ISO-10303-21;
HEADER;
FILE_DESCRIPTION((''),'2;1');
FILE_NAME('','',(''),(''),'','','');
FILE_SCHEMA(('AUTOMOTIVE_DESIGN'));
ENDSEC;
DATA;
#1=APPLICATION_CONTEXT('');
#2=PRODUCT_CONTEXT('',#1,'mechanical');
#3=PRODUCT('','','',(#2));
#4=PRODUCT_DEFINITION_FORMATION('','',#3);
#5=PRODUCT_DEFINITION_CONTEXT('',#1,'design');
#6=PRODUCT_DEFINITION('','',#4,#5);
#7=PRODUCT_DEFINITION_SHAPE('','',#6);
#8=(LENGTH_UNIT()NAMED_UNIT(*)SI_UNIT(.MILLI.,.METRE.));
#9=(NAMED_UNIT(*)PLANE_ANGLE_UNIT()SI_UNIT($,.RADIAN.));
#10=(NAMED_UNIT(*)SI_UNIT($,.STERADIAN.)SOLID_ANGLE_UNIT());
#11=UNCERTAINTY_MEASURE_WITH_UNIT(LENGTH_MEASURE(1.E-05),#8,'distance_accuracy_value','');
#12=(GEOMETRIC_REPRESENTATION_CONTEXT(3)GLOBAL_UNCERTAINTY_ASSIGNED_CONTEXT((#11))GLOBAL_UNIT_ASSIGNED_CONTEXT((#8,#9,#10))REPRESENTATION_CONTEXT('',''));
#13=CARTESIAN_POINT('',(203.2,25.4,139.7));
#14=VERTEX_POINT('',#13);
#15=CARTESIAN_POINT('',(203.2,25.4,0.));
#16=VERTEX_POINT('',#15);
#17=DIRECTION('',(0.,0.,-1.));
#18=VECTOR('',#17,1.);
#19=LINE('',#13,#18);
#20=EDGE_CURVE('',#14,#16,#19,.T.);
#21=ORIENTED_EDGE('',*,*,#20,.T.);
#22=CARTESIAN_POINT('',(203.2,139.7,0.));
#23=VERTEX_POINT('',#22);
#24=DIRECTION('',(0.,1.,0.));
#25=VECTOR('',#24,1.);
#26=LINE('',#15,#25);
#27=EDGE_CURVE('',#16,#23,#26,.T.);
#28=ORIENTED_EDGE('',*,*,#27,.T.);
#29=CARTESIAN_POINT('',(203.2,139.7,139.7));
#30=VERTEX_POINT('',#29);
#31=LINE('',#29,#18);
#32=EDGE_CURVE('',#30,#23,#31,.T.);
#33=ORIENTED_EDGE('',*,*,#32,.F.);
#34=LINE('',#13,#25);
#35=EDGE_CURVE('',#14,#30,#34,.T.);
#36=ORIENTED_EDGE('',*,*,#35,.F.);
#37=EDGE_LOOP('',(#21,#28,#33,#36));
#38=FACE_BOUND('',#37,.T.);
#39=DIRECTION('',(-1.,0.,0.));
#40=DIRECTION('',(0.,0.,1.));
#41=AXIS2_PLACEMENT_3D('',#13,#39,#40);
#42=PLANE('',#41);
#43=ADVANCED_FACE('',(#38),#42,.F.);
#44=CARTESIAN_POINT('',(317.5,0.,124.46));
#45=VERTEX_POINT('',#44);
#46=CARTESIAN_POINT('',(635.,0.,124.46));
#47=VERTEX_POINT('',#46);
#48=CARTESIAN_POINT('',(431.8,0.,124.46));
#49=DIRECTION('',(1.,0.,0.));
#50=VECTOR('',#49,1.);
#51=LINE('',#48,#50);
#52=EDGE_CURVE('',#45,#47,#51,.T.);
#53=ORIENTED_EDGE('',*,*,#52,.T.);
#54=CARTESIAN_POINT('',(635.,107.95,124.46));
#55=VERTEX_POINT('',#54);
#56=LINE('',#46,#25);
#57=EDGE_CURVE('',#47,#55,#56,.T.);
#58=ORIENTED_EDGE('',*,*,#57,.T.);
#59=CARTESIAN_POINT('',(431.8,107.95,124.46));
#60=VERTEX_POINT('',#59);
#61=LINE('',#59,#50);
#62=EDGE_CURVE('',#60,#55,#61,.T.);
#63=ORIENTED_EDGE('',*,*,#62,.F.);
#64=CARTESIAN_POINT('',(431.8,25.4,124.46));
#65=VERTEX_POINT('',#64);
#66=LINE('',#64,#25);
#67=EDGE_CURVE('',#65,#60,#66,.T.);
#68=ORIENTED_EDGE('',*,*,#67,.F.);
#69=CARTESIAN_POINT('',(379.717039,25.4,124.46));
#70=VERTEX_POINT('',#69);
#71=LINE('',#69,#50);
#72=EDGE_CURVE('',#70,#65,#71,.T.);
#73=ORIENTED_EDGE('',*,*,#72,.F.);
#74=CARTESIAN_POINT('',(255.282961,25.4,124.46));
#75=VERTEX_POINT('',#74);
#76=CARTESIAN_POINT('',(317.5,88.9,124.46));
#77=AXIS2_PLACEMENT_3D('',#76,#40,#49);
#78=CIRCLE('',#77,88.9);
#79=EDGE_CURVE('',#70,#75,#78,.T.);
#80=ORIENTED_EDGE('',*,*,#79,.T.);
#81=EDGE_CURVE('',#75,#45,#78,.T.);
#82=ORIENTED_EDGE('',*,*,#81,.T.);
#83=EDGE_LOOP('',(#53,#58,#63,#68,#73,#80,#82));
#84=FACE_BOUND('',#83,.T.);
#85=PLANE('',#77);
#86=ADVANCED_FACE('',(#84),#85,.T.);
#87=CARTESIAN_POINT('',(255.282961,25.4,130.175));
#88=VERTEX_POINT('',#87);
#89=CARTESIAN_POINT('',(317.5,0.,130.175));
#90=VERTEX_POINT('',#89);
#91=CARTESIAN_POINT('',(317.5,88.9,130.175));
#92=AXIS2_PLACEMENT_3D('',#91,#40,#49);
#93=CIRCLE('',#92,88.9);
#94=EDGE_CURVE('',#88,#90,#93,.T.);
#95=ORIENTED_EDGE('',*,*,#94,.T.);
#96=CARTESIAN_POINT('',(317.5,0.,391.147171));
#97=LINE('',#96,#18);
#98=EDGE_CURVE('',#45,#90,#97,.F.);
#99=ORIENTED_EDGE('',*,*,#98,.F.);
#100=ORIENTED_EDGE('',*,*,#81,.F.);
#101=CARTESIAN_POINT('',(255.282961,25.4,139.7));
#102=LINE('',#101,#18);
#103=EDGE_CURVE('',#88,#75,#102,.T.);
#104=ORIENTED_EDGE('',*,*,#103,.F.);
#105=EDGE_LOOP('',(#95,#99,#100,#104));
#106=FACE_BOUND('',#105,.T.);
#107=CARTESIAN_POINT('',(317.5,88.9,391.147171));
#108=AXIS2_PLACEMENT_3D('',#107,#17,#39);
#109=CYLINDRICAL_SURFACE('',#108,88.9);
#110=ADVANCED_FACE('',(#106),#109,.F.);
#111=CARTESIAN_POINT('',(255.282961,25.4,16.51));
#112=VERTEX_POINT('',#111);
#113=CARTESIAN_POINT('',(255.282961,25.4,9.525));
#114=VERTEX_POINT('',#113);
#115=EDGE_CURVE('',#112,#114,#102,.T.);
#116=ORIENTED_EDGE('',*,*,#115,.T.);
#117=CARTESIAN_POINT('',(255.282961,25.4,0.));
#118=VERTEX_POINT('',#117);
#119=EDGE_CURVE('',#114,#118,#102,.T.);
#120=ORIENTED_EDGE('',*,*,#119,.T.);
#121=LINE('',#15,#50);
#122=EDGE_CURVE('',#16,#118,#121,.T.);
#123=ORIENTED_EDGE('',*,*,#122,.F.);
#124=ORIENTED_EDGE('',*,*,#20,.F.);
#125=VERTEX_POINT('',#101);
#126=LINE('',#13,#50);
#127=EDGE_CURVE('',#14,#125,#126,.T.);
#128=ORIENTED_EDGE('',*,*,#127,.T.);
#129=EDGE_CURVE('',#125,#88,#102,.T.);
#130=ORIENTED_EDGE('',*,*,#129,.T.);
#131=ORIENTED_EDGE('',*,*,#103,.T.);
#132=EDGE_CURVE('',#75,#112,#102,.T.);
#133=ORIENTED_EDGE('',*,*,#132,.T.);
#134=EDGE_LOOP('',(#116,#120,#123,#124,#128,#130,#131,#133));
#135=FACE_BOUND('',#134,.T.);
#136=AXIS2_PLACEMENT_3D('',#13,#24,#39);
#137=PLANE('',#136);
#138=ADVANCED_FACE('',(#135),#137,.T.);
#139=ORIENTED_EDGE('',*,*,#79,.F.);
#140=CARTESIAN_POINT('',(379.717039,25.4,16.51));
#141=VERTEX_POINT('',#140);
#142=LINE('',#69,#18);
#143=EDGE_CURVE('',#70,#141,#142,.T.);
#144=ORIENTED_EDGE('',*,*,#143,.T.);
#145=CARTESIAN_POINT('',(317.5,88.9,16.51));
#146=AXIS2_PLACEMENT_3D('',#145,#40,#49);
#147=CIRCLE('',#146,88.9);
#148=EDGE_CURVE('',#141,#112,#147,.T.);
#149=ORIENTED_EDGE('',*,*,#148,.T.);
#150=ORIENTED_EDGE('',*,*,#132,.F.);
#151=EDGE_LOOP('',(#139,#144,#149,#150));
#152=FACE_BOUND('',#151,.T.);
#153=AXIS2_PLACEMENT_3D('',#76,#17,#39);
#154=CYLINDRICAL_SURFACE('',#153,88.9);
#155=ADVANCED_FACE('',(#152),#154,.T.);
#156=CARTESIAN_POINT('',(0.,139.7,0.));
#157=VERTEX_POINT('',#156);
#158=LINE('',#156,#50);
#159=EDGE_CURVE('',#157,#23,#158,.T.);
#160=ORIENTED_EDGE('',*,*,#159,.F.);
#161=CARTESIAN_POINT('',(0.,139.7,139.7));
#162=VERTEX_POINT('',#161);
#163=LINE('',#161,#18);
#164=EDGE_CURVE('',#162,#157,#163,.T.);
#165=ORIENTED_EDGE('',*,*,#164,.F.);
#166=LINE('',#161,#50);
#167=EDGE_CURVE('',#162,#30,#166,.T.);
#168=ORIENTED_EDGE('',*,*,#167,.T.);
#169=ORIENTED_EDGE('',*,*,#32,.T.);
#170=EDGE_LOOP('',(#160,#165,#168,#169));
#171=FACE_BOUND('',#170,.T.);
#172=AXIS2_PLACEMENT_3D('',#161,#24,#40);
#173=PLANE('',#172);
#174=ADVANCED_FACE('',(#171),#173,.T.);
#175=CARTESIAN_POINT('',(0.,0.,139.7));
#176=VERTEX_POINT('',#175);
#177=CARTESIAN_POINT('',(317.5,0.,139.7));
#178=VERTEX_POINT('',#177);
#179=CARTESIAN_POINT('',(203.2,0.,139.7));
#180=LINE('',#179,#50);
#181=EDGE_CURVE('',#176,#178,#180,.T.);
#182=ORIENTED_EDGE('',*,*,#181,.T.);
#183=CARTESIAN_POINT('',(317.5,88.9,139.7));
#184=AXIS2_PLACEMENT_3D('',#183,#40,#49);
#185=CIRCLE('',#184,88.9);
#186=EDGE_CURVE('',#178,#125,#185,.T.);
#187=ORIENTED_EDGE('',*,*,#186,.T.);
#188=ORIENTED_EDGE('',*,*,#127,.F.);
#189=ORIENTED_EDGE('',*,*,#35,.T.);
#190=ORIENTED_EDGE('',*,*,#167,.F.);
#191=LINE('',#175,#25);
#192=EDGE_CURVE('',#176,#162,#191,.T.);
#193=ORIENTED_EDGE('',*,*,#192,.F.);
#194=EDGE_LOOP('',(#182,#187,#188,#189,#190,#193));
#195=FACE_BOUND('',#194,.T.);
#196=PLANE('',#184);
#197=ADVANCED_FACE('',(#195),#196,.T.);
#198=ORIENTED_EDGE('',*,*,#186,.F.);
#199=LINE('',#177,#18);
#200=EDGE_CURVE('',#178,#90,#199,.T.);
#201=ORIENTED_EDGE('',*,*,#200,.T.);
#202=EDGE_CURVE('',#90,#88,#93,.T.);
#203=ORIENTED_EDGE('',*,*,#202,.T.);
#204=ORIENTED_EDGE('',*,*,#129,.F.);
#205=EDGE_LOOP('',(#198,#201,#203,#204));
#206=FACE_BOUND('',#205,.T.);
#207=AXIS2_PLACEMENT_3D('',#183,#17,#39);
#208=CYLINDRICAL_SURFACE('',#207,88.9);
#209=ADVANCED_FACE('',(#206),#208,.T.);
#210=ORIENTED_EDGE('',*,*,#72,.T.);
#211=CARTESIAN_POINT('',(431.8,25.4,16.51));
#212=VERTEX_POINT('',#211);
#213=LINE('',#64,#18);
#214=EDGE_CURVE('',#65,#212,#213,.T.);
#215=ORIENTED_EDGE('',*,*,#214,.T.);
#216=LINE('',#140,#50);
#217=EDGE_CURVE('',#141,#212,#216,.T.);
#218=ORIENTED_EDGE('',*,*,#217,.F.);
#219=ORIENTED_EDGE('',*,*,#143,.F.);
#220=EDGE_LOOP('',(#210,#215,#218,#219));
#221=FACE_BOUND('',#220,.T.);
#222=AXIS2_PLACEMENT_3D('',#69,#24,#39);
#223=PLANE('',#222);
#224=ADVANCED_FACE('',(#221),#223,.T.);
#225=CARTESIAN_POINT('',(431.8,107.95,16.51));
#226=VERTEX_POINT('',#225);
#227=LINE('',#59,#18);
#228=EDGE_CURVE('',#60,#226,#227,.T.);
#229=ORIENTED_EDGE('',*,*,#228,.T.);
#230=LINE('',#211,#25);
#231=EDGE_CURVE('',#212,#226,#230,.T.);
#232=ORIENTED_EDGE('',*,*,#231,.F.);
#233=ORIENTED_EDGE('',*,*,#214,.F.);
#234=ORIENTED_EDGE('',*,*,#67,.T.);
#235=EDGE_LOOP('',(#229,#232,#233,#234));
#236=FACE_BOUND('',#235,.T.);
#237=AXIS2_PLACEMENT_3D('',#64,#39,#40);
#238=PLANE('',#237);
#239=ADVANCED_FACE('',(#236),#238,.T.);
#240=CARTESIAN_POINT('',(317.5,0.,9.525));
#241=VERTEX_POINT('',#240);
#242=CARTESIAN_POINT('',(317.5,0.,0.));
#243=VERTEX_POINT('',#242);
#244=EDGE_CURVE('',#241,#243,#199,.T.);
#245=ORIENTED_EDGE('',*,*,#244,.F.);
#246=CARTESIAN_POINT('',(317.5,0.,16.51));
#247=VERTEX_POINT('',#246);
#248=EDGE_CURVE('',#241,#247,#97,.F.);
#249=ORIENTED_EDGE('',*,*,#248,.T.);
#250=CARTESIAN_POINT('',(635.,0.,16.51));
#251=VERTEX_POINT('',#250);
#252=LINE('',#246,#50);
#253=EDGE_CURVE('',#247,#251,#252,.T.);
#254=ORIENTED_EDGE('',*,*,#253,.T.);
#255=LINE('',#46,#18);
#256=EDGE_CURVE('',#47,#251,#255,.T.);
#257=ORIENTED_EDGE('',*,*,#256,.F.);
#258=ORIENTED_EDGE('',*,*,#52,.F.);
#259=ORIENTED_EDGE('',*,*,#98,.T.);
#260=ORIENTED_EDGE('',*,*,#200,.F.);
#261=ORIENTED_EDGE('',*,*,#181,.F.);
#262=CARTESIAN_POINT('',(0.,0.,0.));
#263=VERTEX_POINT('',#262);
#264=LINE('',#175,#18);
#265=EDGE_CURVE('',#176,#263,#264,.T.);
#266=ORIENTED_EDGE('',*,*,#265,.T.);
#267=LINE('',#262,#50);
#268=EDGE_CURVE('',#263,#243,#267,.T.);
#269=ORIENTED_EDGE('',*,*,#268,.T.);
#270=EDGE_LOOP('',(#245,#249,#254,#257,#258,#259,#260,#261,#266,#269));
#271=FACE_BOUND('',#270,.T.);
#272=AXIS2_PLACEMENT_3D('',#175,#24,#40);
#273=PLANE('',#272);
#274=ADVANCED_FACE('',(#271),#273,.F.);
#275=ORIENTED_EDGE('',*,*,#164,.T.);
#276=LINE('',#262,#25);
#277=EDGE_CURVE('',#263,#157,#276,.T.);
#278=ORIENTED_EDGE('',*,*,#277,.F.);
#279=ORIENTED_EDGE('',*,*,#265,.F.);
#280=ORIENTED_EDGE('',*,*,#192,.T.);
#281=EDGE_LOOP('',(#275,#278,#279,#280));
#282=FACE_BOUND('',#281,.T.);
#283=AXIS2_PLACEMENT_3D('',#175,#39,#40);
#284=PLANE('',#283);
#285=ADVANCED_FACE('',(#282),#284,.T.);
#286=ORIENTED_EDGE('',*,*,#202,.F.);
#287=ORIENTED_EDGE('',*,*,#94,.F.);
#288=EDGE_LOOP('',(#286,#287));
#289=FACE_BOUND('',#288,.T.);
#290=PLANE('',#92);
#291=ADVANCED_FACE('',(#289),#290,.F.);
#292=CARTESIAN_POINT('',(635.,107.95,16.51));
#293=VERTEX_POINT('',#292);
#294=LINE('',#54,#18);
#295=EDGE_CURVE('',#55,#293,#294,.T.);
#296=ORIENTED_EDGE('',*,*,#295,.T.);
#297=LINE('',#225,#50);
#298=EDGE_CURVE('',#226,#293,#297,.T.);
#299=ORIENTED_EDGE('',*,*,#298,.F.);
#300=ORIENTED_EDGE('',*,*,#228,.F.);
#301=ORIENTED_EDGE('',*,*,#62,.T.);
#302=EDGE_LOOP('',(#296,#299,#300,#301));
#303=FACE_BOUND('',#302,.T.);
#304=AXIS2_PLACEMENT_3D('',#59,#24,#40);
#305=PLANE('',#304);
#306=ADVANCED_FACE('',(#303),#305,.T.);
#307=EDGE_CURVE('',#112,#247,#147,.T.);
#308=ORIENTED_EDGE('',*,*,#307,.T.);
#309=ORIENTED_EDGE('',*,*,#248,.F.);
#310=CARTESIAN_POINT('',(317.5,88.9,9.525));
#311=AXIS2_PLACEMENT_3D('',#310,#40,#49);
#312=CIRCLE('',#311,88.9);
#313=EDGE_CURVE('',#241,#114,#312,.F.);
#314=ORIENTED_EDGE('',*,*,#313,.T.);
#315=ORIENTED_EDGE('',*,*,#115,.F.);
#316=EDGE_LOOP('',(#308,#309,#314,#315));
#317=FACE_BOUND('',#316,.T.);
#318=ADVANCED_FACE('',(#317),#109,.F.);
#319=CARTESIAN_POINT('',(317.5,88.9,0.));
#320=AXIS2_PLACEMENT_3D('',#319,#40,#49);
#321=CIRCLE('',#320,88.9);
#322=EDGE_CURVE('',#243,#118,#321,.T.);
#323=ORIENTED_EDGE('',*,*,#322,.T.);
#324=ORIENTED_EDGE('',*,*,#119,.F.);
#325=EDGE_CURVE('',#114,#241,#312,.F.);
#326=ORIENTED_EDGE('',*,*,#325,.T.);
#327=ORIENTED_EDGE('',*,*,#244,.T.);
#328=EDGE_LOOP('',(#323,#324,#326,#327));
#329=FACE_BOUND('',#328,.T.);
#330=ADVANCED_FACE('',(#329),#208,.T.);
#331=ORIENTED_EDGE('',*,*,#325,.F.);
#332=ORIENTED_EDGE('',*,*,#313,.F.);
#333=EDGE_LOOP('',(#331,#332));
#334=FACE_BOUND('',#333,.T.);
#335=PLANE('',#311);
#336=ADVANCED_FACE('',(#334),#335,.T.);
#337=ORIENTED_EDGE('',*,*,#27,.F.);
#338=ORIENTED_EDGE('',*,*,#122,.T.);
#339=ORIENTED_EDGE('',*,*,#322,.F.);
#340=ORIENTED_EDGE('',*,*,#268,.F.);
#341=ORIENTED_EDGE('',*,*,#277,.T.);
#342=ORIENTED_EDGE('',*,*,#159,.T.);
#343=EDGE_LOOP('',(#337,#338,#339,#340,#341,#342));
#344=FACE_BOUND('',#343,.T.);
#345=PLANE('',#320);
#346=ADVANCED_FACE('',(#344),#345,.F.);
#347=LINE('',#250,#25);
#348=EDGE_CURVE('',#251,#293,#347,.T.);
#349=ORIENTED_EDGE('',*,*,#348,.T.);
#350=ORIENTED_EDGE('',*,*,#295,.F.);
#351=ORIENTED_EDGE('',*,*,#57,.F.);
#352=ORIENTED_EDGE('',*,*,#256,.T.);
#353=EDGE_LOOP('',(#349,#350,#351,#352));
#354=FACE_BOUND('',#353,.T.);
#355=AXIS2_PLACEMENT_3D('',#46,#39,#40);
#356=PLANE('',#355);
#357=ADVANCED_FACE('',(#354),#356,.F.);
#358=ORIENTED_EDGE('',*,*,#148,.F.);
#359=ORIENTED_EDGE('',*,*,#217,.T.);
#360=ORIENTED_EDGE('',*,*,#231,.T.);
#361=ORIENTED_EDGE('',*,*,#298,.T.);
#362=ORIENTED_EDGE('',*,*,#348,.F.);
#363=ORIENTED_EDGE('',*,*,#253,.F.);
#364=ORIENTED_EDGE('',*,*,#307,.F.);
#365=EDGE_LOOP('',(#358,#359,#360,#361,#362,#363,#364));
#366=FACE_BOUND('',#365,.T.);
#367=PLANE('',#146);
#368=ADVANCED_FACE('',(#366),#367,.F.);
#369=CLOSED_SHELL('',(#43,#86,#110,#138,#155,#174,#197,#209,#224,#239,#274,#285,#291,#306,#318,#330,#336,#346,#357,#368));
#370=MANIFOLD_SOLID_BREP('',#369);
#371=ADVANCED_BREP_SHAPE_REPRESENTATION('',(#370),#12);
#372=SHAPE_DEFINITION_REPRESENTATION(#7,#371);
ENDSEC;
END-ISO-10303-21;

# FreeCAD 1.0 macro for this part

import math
import FreeCAD as App
import Part
import Sketcher

V = App.Vector
Q = App.Units.Quantity

doc = App.newDocument("Part")
body = doc.addObject("PartDesign::Body", "Body")

# Sketch on XY plane
sketch1 = body.newObject("Sketcher::SketchObject", "Sketch")
sketch1.AttachmentSupport = (doc.getObject("XY_Plane"), [""])
sketch1.MapMode = "FlatFace"
sketch1.addGeometry(Part.ArcOfCircle(Part.Circle(V(318, 89, 0), V(0, 0, 1), 89), math.radians(-90), math.radians(226)), False)
sketch1.addGeometry(Part.LineSegment(V(255, 25, 0), V(203, 25, 0)), False)
sketch1.addGeometry(Part.LineSegment(V(203, 25, 0), V(203, 140, 0)), False)
sketch1.addGeometry(Part.LineSegment(V(203, 140, 0), V(0, 140, 0)), False)
sketch1.addGeometry(Part.LineSegment(V(0, 140, 0), V(0, 0, 0)), False)
sketch1.addGeometry(Part.LineSegment(V(0, 0, 0), V(318, 0, 0)), False)
sketch1.addConstraint(Sketcher.Constraint("Coincident", 0, 2, 1, 1))
sketch1.addConstraint(Sketcher.Constraint("Coincident", 1, 2, 2, 1))
sketch1.addConstraint(Sketcher.Constraint("Coincident", 2, 2, 3, 1))
sketch1.addConstraint(Sketcher.Constraint("Coincident", 3, 2, 4, 1))
sketch1.addConstraint(Sketcher.Constraint("Coincident", 4, 2, 5, 1))
sketch1.addConstraint(Sketcher.Constraint("Tangent", 5, 2, 0, 1))
sketch1.addConstraint(Sketcher.Constraint("Horizontal", 1))
sketch1.addConstraint(Sketcher.Constraint("Vertical", 2))
sketch1.addConstraint(Sketcher.Constraint("Horizontal", 3))
sketch1.addConstraint(Sketcher.Constraint("Vertical", 4))
sketch1.addConstraint(Sketcher.Constraint("Horizontal", 5))
sketch1.addConstraint(Sketcher.Constraint("Coincident", 4, 2, -1, 1))
sketch1.addConstraint(Sketcher.Constraint("Radius", 0, Q("3.5 in")))
sketch1.addConstraint(Sketcher.Constraint("DistanceX", 3, 2, 3, 1, Q("8 in")))
sketch1.addConstraint(Sketcher.Constraint("DistanceX", 5, 1, 5, 2, Q("12.5 in")))
sketch1.addConstraint(Sketcher.Constraint("DistanceY", 2, 1, 2, 2, Q("4.5 in")))
sketch1.addConstraint(Sketcher.Constraint("DistanceY", 4, 2, 4, 1, Q("5.5 in")))
pad1 = body.newObject("PartDesign::Pad", "Pad")
pad1.Profile = sketch1
pad1.Length = Q("5.5 in")

# Sketch on XY plane
sketch2 = body.newObject("Sketcher::SketchObject", "Sketch001")
sketch2.AttachmentSupport = (doc.getObject("XY_Plane"), [""])
sketch2.MapMode = "FlatFace"
sketch2.AttachmentOffset = App.Placement(V(0, 0, 2.75 * 25.4), App.Rotation())
sketch2.addGeometry(Part.Circle(V(318, 89, 0), V(0, 0, 1), 89), False)
sketch2.addConstraint(Sketcher.Constraint("Diameter", 0, Q("7 in")))
sketch2.addConstraint(Sketcher.Constraint("DistanceX", -1, 1, 0, 3, Q("12.5 in")))
sketch2.addConstraint(Sketcher.Constraint("DistanceY", -1, 1, 0, 3, Q("3.5 in")))
pocket1 = body.newObject("PartDesign::Pocket", "Pocket")
pocket1.Profile = sketch2
pocket1.Type = "TwoLengths"
pocket1.Length = Q("2.375 in")
pocket1.Length2 = Q("2.375 in")
pocket1.Reversed = True

# Sketch on XY plane
sketch3 = body.newObject("Sketcher::SketchObject", "Sketch002")
sketch3.AttachmentSupport = (doc.getObject("XY_Plane"), [""])
sketch3.MapMode = "FlatFace"
sketch3.AttachmentOffset = App.Placement(V(0, 0, 0.65 * 25.4), App.Rotation())
sketch3.addGeometry(Part.LineSegment(V(318, 0, 0), V(635, 0, 0)), False)
sketch3.addGeometry(Part.LineSegment(V(635, 0, 0), V(635, 108, 0)), False)
sketch3.addGeometry(Part.LineSegment(V(635, 108, 0), V(432, 108, 0)), False)
sketch3.addGeometry(Part.LineSegment(V(432, 108, 0), V(432, 25, 0)), False)
sketch3.addGeometry(Part.LineSegment(V(432, 25, 0), V(380, 25, 0)), False)
sketch3.addGeometry(Part.ArcOfCircle(Part.Circle(V(318, 89, 0), V(0, 0, 1), 89), math.radians(-46), math.radians(270)), False)
sketch3.addConstraint(Sketcher.Constraint("Coincident", 0, 2, 1, 1))
sketch3.addConstraint(Sketcher.Constraint("Coincident", 1, 2, 2, 1))
sketch3.addConstraint(Sketcher.Constraint("Coincident", 2, 2, 3, 1))
sketch3.addConstraint(Sketcher.Constraint("Coincident", 3, 2, 4, 1))
sketch3.addConstraint(Sketcher.Constraint("Coincident", 4, 2, 5, 1))
sketch3.addConstraint(Sketcher.Constraint("Tangent", 5, 2, 0, 1))
sketch3.addConstraint(Sketcher.Constraint("Horizontal", 0))
sketch3.addConstraint(Sketcher.Constraint("Vertical", 1))
sketch3.addConstraint(Sketcher.Constraint("Horizontal", 2))
sketch3.addConstraint(Sketcher.Constraint("Vertical", 3))
sketch3.addConstraint(Sketcher.Constraint("Horizontal", 4))
sketch3.addConstraint(Sketcher.Constraint("PointOnObject", 0, 2, -1))
sketch3.addConstraint(Sketcher.Constraint("Radius", 5, Q("3.5 in")))
sketch3.addConstraint(Sketcher.Constraint("DistanceX", 2, 2, 2, 1, Q("8 in")))
sketch3.addConstraint(Sketcher.Constraint("DistanceX", 0, 1, 0, 2, Q("12.5 in")))
sketch3.addConstraint(Sketcher.Constraint("DistanceX", -1, 1, 0, 2, Q("25 in")))
sketch3.addConstraint(Sketcher.Constraint("DistanceY", -1, 1, 3, 2, Q("1 in")))
sketch3.addConstraint(Sketcher.Constraint("DistanceY", 1, 1, 1, 2, Q("4.25 in")))
pad2 = body.newObject("PartDesign::Pad", "Pad001")
pad2.Profile = sketch3
pad2.Length = Q("4.25 in")

doc.recompute()
